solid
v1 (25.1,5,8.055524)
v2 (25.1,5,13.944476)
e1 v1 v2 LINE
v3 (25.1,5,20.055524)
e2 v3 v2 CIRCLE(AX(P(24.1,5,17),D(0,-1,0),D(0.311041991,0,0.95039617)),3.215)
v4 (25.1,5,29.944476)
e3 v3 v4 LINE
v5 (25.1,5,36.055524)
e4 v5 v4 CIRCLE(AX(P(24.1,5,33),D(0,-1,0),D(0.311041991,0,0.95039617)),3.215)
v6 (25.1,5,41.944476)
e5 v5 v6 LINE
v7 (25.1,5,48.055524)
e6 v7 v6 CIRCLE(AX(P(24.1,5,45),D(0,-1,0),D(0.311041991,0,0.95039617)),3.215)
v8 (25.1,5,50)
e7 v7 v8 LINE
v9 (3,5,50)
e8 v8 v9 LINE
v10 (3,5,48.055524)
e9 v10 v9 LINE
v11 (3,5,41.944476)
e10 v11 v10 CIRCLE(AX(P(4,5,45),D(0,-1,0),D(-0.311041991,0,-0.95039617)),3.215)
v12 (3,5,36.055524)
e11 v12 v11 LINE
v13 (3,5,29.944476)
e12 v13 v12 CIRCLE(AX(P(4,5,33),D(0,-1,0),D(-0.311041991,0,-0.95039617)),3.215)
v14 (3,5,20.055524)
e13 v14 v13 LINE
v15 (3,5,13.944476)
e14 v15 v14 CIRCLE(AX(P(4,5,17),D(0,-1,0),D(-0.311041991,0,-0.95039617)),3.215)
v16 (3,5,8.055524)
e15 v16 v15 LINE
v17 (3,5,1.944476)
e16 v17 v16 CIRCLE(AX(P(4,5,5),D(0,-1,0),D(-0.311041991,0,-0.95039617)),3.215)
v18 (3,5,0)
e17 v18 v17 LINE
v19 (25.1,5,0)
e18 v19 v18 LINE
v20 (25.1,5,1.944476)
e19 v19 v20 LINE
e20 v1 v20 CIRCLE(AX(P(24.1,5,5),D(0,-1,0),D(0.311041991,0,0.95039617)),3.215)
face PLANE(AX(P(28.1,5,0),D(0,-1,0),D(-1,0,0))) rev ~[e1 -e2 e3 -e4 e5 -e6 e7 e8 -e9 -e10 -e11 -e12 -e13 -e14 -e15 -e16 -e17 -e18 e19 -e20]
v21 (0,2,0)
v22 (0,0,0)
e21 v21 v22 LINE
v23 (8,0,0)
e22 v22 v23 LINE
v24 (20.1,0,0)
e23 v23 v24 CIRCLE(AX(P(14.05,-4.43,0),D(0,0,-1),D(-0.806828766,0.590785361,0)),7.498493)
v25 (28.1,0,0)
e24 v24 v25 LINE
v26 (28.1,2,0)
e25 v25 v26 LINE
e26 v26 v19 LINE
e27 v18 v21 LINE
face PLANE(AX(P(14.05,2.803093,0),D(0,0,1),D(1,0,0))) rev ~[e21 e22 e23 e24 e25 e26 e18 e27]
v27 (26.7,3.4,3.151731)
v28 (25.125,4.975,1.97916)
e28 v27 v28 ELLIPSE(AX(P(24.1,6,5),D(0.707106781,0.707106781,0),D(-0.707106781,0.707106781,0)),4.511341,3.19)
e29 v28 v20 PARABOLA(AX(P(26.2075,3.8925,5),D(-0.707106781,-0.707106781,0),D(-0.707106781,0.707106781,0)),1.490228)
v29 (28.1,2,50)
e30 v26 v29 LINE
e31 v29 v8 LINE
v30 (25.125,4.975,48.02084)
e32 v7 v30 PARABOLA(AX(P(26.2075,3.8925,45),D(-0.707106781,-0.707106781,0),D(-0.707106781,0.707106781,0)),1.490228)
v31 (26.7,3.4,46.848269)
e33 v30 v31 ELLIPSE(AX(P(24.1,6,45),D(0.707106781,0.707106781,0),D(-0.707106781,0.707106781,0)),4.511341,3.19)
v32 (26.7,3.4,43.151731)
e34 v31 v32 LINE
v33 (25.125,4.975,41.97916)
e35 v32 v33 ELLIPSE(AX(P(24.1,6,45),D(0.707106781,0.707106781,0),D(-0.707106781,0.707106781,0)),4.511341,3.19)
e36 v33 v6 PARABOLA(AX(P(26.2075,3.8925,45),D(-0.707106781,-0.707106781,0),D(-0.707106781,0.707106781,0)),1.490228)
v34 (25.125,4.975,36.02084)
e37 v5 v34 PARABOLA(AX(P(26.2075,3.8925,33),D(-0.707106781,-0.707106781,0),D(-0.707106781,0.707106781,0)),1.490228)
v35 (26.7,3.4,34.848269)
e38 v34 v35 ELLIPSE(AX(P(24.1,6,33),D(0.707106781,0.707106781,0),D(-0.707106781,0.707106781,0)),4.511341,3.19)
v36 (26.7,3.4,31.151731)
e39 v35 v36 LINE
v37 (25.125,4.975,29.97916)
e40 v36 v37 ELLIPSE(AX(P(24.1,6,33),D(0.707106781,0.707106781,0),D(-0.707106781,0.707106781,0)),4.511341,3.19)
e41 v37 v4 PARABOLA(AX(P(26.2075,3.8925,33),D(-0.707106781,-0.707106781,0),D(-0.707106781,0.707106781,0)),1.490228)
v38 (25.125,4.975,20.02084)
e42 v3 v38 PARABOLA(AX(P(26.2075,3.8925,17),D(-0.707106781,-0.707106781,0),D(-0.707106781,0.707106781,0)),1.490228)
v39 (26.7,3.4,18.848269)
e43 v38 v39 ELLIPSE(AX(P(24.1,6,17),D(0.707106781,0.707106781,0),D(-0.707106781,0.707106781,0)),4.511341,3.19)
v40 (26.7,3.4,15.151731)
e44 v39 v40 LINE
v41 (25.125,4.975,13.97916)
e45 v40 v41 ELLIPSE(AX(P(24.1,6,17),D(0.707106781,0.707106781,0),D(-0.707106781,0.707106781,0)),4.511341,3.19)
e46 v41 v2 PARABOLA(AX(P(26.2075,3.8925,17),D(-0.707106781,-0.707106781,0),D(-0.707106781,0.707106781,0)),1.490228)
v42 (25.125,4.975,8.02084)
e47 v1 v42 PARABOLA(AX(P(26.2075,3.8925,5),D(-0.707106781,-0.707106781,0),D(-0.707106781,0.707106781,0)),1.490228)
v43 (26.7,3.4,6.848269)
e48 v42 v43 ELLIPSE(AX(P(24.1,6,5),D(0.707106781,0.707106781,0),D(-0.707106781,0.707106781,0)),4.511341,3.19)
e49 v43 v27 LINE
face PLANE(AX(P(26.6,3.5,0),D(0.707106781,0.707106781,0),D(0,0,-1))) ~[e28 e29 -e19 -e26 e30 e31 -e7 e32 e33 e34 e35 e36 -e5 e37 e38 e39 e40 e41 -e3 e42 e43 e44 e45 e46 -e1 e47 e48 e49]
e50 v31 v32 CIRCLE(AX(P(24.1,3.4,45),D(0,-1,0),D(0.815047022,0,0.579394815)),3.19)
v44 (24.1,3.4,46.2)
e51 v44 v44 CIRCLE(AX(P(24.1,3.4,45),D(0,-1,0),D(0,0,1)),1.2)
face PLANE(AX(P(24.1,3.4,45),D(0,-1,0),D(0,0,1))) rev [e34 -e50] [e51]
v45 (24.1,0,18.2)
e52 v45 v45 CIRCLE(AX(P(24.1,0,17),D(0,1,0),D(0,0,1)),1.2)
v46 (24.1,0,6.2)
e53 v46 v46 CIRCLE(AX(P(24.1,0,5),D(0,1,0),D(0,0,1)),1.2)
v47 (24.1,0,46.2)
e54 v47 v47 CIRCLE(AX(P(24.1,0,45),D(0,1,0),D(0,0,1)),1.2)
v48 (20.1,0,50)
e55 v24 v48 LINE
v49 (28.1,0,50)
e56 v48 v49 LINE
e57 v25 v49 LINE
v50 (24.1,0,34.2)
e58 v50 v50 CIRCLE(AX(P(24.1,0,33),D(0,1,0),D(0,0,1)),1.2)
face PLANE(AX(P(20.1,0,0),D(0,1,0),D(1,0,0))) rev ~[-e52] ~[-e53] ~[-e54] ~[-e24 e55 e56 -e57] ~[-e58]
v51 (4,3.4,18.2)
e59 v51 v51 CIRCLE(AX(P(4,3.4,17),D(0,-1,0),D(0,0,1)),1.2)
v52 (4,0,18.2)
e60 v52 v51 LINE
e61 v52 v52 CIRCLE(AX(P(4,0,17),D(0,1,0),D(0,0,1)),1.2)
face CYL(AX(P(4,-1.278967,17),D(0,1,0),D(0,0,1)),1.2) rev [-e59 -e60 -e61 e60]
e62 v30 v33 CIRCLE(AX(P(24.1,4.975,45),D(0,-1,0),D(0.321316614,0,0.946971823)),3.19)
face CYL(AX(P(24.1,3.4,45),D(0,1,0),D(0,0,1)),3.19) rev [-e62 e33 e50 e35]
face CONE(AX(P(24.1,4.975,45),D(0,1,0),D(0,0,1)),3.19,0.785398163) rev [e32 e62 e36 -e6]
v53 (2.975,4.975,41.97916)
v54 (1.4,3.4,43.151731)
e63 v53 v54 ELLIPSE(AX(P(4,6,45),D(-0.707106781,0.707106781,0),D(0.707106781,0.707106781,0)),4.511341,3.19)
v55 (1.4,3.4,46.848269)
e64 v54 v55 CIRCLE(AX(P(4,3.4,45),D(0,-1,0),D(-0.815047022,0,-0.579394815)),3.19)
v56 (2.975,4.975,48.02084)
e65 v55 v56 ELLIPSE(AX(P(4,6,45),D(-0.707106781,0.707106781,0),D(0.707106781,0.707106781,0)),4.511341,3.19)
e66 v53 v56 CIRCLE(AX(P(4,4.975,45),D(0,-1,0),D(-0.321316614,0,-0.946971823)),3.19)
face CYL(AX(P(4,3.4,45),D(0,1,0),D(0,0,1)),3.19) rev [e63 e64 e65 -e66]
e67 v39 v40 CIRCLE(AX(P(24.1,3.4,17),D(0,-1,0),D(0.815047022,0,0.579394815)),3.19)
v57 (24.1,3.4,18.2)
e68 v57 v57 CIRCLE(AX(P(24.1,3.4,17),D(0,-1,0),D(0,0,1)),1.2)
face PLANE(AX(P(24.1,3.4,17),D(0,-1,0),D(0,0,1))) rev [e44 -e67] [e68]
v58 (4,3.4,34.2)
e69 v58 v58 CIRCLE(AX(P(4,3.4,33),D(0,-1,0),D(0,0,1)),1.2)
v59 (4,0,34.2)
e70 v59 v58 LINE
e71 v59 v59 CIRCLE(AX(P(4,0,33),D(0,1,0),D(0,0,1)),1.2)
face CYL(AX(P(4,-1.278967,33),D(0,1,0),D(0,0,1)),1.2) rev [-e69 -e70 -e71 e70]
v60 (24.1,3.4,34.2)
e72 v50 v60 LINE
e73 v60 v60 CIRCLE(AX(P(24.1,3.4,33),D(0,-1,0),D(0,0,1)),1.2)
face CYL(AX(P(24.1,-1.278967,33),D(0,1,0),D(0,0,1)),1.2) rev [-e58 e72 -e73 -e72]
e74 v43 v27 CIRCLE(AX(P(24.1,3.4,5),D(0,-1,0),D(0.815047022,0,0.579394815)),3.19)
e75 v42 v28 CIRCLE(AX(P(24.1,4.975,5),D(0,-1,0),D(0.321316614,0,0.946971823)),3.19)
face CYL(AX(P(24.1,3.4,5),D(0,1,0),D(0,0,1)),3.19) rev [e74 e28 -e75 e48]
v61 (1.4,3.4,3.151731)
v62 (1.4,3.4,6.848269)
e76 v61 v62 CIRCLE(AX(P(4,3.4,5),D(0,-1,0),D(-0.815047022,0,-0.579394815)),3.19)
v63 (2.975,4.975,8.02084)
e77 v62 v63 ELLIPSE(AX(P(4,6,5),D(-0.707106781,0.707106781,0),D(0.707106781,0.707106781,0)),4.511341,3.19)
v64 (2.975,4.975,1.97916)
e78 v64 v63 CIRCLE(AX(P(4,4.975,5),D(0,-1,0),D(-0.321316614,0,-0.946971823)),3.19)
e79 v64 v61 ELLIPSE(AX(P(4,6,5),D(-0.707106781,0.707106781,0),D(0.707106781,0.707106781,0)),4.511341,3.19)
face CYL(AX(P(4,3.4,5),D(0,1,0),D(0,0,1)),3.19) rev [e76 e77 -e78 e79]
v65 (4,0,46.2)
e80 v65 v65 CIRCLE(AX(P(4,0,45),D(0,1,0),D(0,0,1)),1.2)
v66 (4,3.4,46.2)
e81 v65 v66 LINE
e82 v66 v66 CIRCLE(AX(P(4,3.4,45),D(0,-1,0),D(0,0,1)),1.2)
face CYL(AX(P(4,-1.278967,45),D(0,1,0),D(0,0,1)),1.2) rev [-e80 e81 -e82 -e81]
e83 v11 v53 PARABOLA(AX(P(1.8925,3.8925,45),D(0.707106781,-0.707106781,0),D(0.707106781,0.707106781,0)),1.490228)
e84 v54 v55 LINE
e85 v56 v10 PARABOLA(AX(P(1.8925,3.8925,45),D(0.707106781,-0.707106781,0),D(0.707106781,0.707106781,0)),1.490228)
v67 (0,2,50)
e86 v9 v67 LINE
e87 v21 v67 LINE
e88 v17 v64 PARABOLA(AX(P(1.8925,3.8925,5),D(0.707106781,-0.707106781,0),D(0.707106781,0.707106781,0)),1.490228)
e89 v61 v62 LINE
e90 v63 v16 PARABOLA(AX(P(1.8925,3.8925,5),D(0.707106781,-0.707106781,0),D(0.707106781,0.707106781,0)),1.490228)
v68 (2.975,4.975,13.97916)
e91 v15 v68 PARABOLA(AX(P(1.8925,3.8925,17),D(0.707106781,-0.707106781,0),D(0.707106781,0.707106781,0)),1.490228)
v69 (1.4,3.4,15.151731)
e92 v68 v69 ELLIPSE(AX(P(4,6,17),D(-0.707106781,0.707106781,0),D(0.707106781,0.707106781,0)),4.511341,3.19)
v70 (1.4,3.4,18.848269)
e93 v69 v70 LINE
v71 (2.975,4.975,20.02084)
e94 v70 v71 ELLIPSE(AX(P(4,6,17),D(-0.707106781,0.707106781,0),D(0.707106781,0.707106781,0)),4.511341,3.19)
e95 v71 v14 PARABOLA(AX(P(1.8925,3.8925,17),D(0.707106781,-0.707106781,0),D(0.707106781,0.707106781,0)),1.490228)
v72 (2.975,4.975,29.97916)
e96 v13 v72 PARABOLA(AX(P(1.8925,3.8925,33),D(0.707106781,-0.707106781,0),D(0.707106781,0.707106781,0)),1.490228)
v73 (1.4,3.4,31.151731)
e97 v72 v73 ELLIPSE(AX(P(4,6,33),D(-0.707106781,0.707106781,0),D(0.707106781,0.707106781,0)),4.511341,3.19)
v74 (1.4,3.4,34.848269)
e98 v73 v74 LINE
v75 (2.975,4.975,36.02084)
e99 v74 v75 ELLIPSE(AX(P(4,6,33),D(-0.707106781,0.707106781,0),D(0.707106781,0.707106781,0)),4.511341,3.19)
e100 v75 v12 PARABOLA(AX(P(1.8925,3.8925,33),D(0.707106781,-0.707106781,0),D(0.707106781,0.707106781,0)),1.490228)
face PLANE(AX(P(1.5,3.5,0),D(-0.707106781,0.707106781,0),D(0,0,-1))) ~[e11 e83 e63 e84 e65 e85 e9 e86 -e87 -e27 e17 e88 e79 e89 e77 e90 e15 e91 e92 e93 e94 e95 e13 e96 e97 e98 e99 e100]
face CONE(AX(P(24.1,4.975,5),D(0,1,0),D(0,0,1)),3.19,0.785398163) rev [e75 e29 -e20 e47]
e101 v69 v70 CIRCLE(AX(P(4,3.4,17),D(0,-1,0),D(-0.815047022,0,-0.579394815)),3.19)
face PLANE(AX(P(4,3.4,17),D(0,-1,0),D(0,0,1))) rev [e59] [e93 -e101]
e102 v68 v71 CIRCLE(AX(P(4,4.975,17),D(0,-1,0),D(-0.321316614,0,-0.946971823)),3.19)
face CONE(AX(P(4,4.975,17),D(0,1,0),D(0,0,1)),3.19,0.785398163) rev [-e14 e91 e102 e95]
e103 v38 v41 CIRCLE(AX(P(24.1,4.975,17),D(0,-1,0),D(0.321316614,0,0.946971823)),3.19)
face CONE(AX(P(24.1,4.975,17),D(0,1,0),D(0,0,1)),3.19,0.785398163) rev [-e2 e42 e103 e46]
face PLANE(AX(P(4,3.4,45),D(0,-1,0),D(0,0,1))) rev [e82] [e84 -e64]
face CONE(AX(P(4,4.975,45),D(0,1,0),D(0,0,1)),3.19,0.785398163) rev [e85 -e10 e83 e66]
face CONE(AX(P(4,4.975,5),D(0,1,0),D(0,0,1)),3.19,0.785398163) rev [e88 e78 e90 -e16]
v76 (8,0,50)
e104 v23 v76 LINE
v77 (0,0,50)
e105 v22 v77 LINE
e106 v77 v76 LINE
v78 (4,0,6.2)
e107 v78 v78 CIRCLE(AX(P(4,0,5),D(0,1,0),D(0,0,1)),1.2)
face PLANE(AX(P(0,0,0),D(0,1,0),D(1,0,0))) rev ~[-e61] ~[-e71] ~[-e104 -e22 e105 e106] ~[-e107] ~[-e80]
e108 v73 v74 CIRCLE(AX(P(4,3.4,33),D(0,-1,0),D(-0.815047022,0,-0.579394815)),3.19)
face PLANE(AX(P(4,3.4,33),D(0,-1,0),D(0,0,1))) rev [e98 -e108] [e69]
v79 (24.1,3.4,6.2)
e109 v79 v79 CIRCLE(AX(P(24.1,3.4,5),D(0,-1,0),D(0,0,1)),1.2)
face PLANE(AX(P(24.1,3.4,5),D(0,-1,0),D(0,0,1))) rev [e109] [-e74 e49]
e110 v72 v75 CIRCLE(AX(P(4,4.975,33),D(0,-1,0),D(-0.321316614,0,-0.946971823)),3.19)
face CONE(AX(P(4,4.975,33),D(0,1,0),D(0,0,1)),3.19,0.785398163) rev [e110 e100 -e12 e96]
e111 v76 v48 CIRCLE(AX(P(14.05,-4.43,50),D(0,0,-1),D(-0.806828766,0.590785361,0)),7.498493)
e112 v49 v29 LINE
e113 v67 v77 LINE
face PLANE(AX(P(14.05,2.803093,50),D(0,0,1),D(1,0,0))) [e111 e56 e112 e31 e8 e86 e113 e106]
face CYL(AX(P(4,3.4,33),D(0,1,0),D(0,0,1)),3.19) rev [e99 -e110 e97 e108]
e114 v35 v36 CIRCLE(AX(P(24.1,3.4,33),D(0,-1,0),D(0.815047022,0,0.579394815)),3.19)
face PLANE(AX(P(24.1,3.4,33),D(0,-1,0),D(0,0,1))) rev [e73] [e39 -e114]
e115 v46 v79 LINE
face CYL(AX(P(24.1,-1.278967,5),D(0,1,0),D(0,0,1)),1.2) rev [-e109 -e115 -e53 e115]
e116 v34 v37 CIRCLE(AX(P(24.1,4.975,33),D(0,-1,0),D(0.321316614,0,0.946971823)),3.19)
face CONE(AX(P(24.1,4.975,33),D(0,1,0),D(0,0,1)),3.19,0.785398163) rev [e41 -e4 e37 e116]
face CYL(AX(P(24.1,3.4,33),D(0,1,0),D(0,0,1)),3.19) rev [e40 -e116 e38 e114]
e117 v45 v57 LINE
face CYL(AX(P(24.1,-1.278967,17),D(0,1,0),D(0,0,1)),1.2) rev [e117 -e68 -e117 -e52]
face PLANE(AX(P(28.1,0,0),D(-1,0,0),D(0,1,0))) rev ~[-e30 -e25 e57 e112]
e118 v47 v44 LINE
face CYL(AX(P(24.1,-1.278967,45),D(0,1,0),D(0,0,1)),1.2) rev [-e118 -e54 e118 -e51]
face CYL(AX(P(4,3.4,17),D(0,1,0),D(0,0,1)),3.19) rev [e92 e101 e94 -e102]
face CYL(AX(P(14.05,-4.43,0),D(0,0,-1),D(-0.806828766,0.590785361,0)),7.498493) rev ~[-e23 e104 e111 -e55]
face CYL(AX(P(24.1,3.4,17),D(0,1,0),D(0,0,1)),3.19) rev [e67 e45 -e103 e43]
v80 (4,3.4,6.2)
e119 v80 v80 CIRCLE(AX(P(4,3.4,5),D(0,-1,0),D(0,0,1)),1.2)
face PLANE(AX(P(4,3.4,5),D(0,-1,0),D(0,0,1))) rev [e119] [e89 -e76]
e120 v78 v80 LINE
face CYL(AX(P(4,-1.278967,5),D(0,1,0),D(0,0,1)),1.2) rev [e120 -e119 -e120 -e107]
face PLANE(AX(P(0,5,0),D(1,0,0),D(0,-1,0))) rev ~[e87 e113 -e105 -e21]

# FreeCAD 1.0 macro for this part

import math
import FreeCAD as App
import Part
import Sketcher
from FreeCAD import Vector
Q = App.Units.Quantity


def edges_at(feature, points):
    """Names of the edges that pass closest to the given points."""
    edges = feature.Shape.Edges
    near = lambda p: min(range(len(edges)), key=lambda i: edges[i].distToShape(Part.Vertex(*p))[0])
    return sorted({f"Edge{near(p) + 1}" for p in points})

doc = App.newDocument("Part")
body = doc.addObject("PartDesign::Body", "Body")

# Sketch on XY plane
sketch1 = body.newObject("Sketcher::SketchObject", "Sketch")
sketch1.AttachmentSupport = (doc.getObject("XY_Plane"), [""])
sketch1.MapMode = "FlatFace"
sketch1.addGeometry([
    Part.LineSegment(Vector(0, 0, 0), Vector(8, 0, 0)),  # 0
    Part.ArcOfCircle(Part.Circle(Vector(14.05, -4.43, 0), Vector(0, 0, 1), 7.498493), math.radians(36.21276), math.radians(143.78724)),  # 1
    Part.LineSegment(Vector(20.1, 0, 0), Vector(28.1, 0, 0)),  # 2
    Part.LineSegment(Vector(28.1, 0, 0), Vector(28.1, 5, 0)),  # 3
    Part.LineSegment(Vector(28.1, 5, 0), Vector(0, 5, 0)),  # 4
    Part.LineSegment(Vector(0, 5, 0), Vector(0, 0, 0)),  # 5
], False)
sketch1.addConstraint([
    Sketcher.Constraint("Coincident", 0, 2, 1, 2),
    Sketcher.Constraint("Coincident", 1, 1, 2, 1),
    Sketcher.Constraint("Coincident", 2, 2, 3, 1),
    Sketcher.Constraint("Coincident", 3, 2, 4, 1),
    Sketcher.Constraint("Coincident", 4, 2, 5, 1),
    Sketcher.Constraint("Coincident", 5, 2, 0, 1),
    Sketcher.Constraint("Horizontal", 0),
    Sketcher.Constraint("Horizontal", 2),
    Sketcher.Constraint("Vertical", 3),
    Sketcher.Constraint("Horizontal", 4),
    Sketcher.Constraint("Vertical", 5),
    Sketcher.Constraint("Coincident", 5, 2, -1, 1),
    Sketcher.Constraint("PointOnObject", 1, 1, -1),
    Sketcher.Constraint("Equal", 0, 2),
    Sketcher.Constraint("DistanceX", 0, 1, 0, 2, 8.0),
    Sketcher.Constraint("DistanceY", 3, 1, 3, 2, 5.0),
    Sketcher.Constraint("DistanceX", 4, 2, 4, 1, 28.1),
    Sketcher.Constraint("DistanceY", 1, 3, -1, 1, 4.43),
])
pad1 = body.newObject("PartDesign::Pad", "Pad")
pad1.Profile = sketch1
pad1.Length = 50
doc.recompute()

chamfer = body.newObject("PartDesign::Chamfer", "Chamfer")
chamfer.Base = (pad1, edges_at(pad1, [(0, 5, 25), (28.1, 5, 25)]))
chamfer.Size = 3

# Sketch on YZ plane
sketch2 = body.newObject("Sketcher::SketchObject", "Sketch001")
sketch2.AttachmentSupport = (doc.getObject("YZ_Plane"), [""])
sketch2.MapMode = "FlatFace"
sketch2.AttachmentOffset = App.Placement(Vector(0, 0, 4), App.Rotation())
sketch2.addGeometry([
    Part.LineSegment(Vector(-2, 5, 0), Vector(5, 5, 0)),  # 0
    Part.LineSegment(Vector(5, 5, 0), Vector(5, 8.215, 0)),  # 1
    Part.LineSegment(Vector(5, 8.215, 0), Vector(4.975, 8.19, 0)),  # 2
    Part.LineSegment(Vector(4.975, 8.19, 0), Vector(3.4, 8.19, 0)),  # 3
    Part.LineSegment(Vector(3.4, 8.19, 0), Vector(3.4, 6.2, 0)),  # 4
    Part.LineSegment(Vector(3.4, 6.2, 0), Vector(-1.278967, 6.2, 0)),  # 5
    Part.LineSegment(Vector(-1.278967, 6.2, 0), Vector(-2, 5, 0)),  # 6
], False)
sketch2.addGeometry(Part.LineSegment(Vector(5, 5, 0), Vector(-2, 5, 0)), True)  # axis
sketch2.addConstraint([
    Sketcher.Constraint("Coincident", 0, 2, 1, 1),
    Sketcher.Constraint("Coincident", 1, 2, 2, 1),
    Sketcher.Constraint("Coincident", 2, 2, 3, 1),
    Sketcher.Constraint("Coincident", 3, 2, 4, 1),
    Sketcher.Constraint("Coincident", 4, 2, 5, 1),
    Sketcher.Constraint("Coincident", 5, 2, 6, 1),
    Sketcher.Constraint("Coincident", 6, 2, 0, 1),
    Sketcher.Constraint("Horizontal", 0),
    Sketcher.Constraint("Vertical", 1),
    Sketcher.Constraint("Horizontal", 3),
    Sketcher.Constraint("Vertical", 4),
    Sketcher.Constraint("Horizontal", 5),
    Sketcher.Constraint("Horizontal", 7),
    Sketcher.Constraint("Coincident", 7, 1, 0, 2),
    Sketcher.Constraint("Equal", 0, 7),
    Sketcher.Constraint("DistanceX", 0, 1, 0, 2, 7.0),
    Sketcher.Constraint("Angle", 2, Q("-135 deg")),
    Sketcher.Constraint("Angle", 6, Q("-121 deg")),
    Sketcher.Constraint("DistanceX", -1, 1, 0, 2, 5.0),
    Sketcher.Constraint("DistanceY", -1, 1, 0, 2, 5.0),
    Sketcher.Constraint("DistanceY", 4, 2, 4, 1, 1.99),
    Sketcher.Constraint("DistanceX", -1, 1, 3, 2, 3.4),
    Sketcher.Constraint("DistanceY", -1, 1, 4, 2, 6.2),
    Sketcher.Constraint("DistanceX", 3, 2, 3, 1, 1.575),
])
groove = body.newObject("PartDesign::Groove", "Groove")
groove.Profile = sketch2
groove.ReferenceAxis = (sketch2, ["Axis0"])
groove.Angle = 360
doc.recompute()

linearpattern = body.newObject("PartDesign::LinearPattern", "LinearPattern")
linearpattern.Originals = [groove]
linearpattern.Direction = (doc.getObject("Z_Axis"), [""])
linearpattern.Mode = "offset"
linearpattern.Offset = 12
linearpattern.Occurrences = 2
body.Tip = linearpattern
doc.recompute()

datumline = body.newObject("PartDesign::Line", "DatumLine")
datumline.Placement = App.Placement(Vector(0, 0, 0), App.Rotation(Vector(0, 0, 1), Vector(0.858621612, 0, 0.512609918)))
linearpattern2 = body.newObject("PartDesign::LinearPattern", "LinearPattern001")
linearpattern2.Originals = [groove]
linearpattern2.Direction = (datumline, [""])
linearpattern2.Mode = "offset"
linearpattern2.Offset = 23.409613
linearpattern2.Occurrences = 2
body.Tip = linearpattern2
doc.recompute()

linearpattern3 = body.newObject("PartDesign::LinearPattern", "LinearPattern002")
linearpattern3.Originals = [groove]
linearpattern3.Direction = (doc.getObject("X_Axis"), [""])
linearpattern3.Mode = "offset"
linearpattern3.Offset = 20.1
linearpattern3.Occurrences = 2
body.Tip = linearpattern3
doc.recompute()

linearpattern4 = body.newObject("PartDesign::LinearPattern", "LinearPattern003")
linearpattern4.Originals = [groove]
linearpattern4.Direction = (doc.getObject("Z_Axis"), [""])
linearpattern4.Mode = "offset"
linearpattern4.Offset = 28
linearpattern4.Occurrences = 2
body.Tip = linearpattern4
doc.recompute()

datumline2 = body.newObject("PartDesign::Line", "DatumLine001")
datumline2.Placement = App.Placement(Vector(0, 0, 0), App.Rotation(Vector(0, 0, 1), Vector(0.583157693, 0, 0.812358975)))
linearpattern5 = body.newObject("PartDesign::LinearPattern", "LinearPattern004")
linearpattern5.Originals = [groove]
linearpattern5.Direction = (datumline2, [""])
linearpattern5.Mode = "offset"
linearpattern5.Offset = 34.467521
linearpattern5.Occurrences = 2
body.Tip = linearpattern5
doc.recompute()

datumline3 = body.newObject("PartDesign::Line", "DatumLine002")
datumline3.Placement = App.Placement(Vector(0, 0, 0), App.Rotation(Vector(0, 0, 1), Vector(0.448999767, 0, 0.893531874)))
linearpattern6 = body.newObject("PartDesign::LinearPattern", "LinearPattern005")
linearpattern6.Originals = [groove]
linearpattern6.Direction = (datumline3, [""])
linearpattern6.Mode = "offset"
linearpattern6.Offset = 44.76617
linearpattern6.Occurrences = 2
body.Tip = linearpattern6
doc.recompute()

linearpattern7 = body.newObject("PartDesign::LinearPattern", "LinearPattern006")
linearpattern7.Originals = [groove]
linearpattern7.Direction = (doc.getObject("Z_Axis"), [""])
linearpattern7.Mode = "offset"
linearpattern7.Offset = 40
linearpattern7.Occurrences = 2
body.Tip = linearpattern7

doc.recompute()
